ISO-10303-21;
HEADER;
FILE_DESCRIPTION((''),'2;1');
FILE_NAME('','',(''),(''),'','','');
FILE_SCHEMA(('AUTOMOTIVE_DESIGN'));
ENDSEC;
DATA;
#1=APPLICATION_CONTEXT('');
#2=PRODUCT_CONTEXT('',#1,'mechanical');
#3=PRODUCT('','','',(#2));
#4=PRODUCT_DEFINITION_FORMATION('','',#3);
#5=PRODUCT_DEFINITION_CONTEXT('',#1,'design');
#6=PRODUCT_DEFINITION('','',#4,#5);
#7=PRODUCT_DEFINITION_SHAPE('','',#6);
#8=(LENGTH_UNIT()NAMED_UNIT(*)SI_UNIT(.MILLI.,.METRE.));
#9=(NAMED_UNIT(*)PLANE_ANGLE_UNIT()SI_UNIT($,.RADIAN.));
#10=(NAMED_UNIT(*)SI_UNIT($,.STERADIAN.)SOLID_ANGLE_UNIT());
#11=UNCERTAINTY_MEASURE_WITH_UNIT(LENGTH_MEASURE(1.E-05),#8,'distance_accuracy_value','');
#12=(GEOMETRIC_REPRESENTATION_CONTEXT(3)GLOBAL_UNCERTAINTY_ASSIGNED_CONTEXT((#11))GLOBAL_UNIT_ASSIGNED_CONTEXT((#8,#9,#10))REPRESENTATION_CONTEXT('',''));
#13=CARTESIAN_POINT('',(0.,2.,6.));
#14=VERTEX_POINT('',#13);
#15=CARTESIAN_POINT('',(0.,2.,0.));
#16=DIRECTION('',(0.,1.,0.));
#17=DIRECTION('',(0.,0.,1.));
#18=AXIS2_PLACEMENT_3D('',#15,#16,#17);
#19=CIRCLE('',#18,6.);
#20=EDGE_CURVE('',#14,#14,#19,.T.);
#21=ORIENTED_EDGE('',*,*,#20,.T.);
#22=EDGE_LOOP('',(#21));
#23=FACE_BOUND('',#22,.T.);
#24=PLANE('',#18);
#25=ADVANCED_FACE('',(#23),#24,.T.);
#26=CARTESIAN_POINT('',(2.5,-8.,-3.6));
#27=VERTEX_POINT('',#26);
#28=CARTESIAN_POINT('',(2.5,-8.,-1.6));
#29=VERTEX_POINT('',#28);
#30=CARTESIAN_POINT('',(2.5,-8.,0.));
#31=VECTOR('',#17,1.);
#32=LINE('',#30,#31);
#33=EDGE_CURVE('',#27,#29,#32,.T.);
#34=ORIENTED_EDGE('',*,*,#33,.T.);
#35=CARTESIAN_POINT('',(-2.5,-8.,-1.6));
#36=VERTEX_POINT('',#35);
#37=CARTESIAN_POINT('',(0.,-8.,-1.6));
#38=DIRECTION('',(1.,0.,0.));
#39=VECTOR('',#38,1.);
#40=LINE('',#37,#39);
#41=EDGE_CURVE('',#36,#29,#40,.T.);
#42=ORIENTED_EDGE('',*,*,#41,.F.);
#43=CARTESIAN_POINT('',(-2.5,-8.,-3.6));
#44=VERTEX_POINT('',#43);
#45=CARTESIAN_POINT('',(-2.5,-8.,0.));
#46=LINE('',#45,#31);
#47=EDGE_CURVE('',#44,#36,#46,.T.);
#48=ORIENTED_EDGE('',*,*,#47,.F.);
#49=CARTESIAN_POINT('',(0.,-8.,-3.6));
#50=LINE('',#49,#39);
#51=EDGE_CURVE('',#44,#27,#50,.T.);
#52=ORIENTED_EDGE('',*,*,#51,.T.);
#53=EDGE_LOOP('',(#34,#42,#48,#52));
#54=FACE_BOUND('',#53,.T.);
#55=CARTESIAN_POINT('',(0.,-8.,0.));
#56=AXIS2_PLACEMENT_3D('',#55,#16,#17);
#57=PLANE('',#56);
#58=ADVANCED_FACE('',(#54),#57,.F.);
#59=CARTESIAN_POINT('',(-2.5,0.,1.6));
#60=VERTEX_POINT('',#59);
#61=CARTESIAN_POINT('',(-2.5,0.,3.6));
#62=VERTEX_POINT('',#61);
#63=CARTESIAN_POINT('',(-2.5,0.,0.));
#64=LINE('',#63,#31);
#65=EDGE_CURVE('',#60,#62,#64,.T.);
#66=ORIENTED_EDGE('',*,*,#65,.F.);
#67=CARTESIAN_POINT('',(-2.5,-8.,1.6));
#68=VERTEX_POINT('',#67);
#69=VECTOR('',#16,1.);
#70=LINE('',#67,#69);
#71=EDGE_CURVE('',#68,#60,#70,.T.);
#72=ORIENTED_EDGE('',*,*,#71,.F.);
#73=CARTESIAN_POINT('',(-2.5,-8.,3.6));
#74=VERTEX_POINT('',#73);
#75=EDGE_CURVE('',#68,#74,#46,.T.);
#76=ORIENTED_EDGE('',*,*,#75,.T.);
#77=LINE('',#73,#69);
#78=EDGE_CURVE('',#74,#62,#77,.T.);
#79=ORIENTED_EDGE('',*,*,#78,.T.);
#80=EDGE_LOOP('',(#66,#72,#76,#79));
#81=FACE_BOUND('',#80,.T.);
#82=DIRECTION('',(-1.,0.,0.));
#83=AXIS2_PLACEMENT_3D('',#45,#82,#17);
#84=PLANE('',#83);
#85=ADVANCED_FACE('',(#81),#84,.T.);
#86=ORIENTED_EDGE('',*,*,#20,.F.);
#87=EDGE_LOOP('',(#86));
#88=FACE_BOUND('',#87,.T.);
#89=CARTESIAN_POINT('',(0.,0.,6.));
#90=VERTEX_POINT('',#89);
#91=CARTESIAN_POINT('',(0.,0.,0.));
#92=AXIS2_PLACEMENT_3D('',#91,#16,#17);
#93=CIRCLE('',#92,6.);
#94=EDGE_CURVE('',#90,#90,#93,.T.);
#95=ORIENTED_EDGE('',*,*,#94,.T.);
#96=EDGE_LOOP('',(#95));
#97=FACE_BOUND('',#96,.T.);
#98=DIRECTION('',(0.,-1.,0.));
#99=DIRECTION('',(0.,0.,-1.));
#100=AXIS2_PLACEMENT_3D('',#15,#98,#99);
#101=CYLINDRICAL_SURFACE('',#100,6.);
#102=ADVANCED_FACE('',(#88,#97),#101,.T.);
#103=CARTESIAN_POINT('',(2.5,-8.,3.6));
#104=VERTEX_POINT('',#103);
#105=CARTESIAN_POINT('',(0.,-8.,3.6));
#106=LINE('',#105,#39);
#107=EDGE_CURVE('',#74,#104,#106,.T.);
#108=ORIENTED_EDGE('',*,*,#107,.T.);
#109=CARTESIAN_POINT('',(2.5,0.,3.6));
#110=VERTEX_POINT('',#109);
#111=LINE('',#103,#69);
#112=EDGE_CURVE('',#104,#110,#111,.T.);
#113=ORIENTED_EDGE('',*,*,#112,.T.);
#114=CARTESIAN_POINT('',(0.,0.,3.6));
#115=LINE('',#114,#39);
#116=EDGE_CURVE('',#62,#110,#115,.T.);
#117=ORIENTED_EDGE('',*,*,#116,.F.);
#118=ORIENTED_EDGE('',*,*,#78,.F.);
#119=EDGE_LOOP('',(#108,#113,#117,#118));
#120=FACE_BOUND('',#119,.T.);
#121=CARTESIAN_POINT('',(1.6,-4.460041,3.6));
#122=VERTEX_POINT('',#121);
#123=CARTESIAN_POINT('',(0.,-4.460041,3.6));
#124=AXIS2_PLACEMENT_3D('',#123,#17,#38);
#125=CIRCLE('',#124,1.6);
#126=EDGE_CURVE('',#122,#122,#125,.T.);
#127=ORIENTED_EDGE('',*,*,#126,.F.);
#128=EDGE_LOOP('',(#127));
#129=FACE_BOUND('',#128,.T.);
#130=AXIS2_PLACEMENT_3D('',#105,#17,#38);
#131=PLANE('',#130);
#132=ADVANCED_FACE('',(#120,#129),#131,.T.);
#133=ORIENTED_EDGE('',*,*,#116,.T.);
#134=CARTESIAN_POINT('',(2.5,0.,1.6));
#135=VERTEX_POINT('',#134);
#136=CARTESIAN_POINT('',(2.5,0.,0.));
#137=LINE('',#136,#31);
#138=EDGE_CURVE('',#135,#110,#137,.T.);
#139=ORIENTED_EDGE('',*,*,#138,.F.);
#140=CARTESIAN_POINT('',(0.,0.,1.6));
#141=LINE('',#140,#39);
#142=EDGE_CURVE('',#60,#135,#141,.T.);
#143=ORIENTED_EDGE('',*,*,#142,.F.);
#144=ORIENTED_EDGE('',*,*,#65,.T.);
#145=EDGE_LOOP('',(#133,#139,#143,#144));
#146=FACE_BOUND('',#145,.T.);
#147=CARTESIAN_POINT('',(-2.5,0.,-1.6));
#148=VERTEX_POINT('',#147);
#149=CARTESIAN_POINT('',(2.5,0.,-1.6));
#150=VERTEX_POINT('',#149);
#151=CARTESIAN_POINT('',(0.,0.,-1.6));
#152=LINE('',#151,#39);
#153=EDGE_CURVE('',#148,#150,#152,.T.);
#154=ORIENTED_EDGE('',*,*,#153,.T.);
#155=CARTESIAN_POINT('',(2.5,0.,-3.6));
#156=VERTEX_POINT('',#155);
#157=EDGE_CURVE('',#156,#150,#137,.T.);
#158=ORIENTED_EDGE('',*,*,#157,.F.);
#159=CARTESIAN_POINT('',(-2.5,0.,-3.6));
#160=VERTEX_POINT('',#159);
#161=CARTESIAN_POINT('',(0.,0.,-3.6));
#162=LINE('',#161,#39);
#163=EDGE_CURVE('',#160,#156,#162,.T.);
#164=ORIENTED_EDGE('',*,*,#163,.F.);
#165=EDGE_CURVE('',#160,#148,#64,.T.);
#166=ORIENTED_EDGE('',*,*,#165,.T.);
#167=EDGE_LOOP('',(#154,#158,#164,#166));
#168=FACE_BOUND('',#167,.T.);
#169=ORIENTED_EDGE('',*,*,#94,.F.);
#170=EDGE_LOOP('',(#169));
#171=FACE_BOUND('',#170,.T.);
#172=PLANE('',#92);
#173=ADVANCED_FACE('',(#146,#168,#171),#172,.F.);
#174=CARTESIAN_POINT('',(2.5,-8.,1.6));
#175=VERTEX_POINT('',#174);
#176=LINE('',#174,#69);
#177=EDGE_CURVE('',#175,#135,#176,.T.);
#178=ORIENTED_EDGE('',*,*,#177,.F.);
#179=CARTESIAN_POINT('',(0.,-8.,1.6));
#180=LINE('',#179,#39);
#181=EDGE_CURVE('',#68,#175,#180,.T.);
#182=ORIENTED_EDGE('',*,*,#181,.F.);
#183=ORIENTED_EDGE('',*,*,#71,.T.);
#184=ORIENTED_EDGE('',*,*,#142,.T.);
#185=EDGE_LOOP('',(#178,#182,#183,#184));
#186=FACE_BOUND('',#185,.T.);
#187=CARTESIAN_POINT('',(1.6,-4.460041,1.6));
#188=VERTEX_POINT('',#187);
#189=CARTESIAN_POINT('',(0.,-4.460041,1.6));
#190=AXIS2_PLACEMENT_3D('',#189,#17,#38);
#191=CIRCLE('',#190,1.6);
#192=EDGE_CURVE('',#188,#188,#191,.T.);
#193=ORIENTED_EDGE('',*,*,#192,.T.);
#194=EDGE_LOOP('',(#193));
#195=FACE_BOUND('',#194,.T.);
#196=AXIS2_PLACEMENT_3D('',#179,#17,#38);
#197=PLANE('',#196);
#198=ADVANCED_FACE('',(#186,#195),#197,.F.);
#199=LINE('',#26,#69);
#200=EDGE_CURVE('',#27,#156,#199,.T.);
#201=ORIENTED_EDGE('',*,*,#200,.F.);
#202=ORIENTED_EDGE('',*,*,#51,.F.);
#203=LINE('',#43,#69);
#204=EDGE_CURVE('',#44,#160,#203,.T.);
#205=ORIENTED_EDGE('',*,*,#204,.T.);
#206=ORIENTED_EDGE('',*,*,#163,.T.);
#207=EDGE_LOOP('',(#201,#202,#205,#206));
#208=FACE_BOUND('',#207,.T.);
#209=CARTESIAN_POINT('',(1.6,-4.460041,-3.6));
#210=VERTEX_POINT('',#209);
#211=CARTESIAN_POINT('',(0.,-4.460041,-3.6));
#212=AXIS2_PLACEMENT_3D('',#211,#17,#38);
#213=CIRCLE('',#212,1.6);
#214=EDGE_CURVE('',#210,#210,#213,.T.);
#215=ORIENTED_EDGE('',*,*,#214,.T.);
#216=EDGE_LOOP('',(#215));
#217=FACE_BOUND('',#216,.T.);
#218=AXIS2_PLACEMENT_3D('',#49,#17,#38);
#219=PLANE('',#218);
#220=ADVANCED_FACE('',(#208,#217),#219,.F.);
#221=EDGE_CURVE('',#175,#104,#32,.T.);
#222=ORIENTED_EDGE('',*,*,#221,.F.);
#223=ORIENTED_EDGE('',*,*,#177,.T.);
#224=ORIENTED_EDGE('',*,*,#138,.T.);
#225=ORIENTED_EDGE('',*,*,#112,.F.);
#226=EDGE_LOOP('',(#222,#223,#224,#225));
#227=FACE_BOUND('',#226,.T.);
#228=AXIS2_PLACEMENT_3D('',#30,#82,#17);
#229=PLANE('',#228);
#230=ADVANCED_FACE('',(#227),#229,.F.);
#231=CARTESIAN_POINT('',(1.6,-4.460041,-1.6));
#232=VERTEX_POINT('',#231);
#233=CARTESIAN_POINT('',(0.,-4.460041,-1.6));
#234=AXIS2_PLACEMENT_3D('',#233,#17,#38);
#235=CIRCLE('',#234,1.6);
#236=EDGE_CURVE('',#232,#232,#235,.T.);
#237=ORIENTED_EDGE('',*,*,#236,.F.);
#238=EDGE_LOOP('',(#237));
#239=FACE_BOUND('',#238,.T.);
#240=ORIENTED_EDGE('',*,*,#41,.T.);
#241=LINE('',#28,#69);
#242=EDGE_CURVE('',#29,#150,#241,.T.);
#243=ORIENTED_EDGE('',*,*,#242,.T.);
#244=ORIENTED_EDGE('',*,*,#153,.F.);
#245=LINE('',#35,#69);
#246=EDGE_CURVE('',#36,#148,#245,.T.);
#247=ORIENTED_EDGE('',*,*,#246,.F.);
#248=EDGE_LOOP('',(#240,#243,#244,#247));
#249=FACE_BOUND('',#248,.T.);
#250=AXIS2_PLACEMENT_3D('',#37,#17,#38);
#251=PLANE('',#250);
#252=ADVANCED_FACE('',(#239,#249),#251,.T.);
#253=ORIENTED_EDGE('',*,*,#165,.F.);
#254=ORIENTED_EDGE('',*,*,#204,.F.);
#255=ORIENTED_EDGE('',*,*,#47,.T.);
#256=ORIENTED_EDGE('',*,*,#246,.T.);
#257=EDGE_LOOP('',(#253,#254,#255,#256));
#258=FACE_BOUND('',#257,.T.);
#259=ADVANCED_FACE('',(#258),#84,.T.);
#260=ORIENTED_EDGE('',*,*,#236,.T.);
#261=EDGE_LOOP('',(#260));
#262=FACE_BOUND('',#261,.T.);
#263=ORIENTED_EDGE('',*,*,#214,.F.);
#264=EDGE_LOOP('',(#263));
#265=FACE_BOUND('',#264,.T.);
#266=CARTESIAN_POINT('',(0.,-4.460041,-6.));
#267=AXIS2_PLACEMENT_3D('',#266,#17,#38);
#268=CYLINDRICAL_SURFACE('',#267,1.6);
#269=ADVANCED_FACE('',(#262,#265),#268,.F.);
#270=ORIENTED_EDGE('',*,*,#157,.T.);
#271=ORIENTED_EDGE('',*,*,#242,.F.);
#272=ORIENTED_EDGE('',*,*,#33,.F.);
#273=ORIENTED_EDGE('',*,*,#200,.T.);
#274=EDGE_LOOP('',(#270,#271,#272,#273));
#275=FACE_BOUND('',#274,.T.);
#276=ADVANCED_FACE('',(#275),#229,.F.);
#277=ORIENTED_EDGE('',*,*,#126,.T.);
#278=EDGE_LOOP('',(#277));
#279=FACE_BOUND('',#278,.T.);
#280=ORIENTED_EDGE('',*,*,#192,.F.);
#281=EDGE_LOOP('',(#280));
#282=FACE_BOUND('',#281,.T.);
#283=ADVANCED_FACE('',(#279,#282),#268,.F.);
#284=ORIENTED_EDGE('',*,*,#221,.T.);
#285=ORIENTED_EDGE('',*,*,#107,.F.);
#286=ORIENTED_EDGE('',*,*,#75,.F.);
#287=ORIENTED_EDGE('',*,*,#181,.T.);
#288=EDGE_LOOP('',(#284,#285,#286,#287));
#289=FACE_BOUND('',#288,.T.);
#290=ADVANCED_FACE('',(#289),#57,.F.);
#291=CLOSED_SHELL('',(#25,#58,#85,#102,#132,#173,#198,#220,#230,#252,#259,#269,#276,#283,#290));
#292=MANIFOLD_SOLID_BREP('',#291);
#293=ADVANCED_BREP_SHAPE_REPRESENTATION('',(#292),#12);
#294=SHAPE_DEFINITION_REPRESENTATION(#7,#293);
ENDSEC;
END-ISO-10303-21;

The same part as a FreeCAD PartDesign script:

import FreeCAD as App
import Part
import Sketcher
from FreeCAD import Vector

doc = App.newDocument("Part")
params = doc.addObject("Spreadsheet::Sheet", "Params")
for row, (alias, value) in enumerate([
    ("sketch1_diameter", "12 mm"),
    ("pad1_length", "2 mm"),
    ("sketch2_width", "5 mm"),
    ("sketch2_height", "2 mm"),
    ("pad2_length", "8 mm"),
    ("sketch3_diameter", "3.2 mm"),
], start=1):
    params.set(f"A{row}", alias)
    params.set(f"B{row}", "=" + value)
    params.setAlias(f"B{row}", alias)

body = doc.addObject("PartDesign::Body", "Body")

# Sketch on XZ plane
sketch1 = body.newObject("Sketcher::SketchObject", "Sketch")
sketch1.AttachmentSupport = (doc.getObject("XZ_Plane"), [""])
sketch1.MapMode = "FlatFace"
sketch1.addGeometry(Part.Circle(Vector(0, 0, 0), Vector(0, 0, 1), 6), False)
sketch1.addConstraint(Sketcher.Constraint("Coincident", 0, 3, -1, 1))
sketch1.addConstraint(Sketcher.Constraint("Diameter", 0, 12.0))
sketch1.setExpression("Constraints[1]", "Params.sketch1_diameter")
pad1 = body.newObject("PartDesign::Pad", "Pad")
pad1.Profile = sketch1
pad1.setExpression("Length", "Params.pad1_length")
pad1.Reversed = True

# Sketch on XZ plane
sketch2 = body.newObject("Sketcher::SketchObject", "Sketch001")
sketch2.AttachmentSupport = (doc.getObject("XZ_Plane"), [""])
sketch2.MapMode = "FlatFace"
sketch2.addGeometry(Part.LineSegment(Vector(-2.5, -3.6, 0), Vector(-2.5, -1.6, 0)), False)
sketch2.addGeometry(Part.LineSegment(Vector(-2.5, -1.6, 0), Vector(2.5, -1.6, 0)), False)
sketch2.addGeometry(Part.LineSegment(Vector(2.5, -1.6, 0), Vector(2.5, -3.6, 0)), False)
sketch2.addGeometry(Part.LineSegment(Vector(2.5, -3.6, 0), Vector(-2.5, -3.6, 0)), False)
sketch2.addGeometry(Part.LineSegment(Vector(-2.5, 1.6, 0), Vector(-2.5, 3.6, 0)), False)
sketch2.addGeometry(Part.LineSegment(Vector(-2.5, 3.6, 0), Vector(2.5, 3.6, 0)), False)
sketch2.addGeometry(Part.LineSegment(Vector(2.5, 3.6, 0), Vector(2.5, 1.6, 0)), False)
sketch2.addGeometry(Part.LineSegment(Vector(2.5, 1.6, 0), Vector(-2.5, 1.6, 0)), False)
sketch2.addConstraint(Sketcher.Constraint("Coincident", 0, 2, 1, 1))
sketch2.addConstraint(Sketcher.Constraint("Coincident", 1, 2, 2, 1))
sketch2.addConstraint(Sketcher.Constraint("Coincident", 2, 2, 3, 1))
sketch2.addConstraint(Sketcher.Constraint("Coincident", 3, 2, 0, 1))
sketch2.addConstraint(Sketcher.Constraint("Coincident", 4, 2, 5, 1))
sketch2.addConstraint(Sketcher.Constraint("Coincident", 5, 2, 6, 1))
sketch2.addConstraint(Sketcher.Constraint("Coincident", 6, 2, 7, 1))
sketch2.addConstraint(Sketcher.Constraint("Coincident", 7, 2, 4, 1))
sketch2.addConstraint(Sketcher.Constraint("Vertical", 0))
sketch2.addConstraint(Sketcher.Constraint("Horizontal", 1))
sketch2.addConstraint(Sketcher.Constraint("Vertical", 2))
sketch2.addConstraint(Sketcher.Constraint("Horizontal", 3))
sketch2.addConstraint(Sketcher.Constraint("Vertical", 4))
sketch2.addConstraint(Sketcher.Constraint("Horizontal", 5))
sketch2.addConstraint(Sketcher.Constraint("Vertical", 6))
sketch2.addConstraint(Sketcher.Constraint("Horizontal", 7))
sketch2.addConstraint(Sketcher.Constraint("Symmetric", 2, 2, 4, 2, -1, 1))
sketch2.addConstraint(Sketcher.Constraint("Symmetric", 0, 2, 6, 2, -1, 1))
sketch2.addConstraint(Sketcher.Constraint("Vertical", 3, 2, 4, 2))
sketch2.addConstraint(Sketcher.Constraint("DistanceX", 1, 1, 1, 2, 5.0))
sketch2.addConstraint(Sketcher.Constraint("DistanceY", 0, 1, 0, 2, 2.0))
sketch2.addConstraint(Sketcher.Constraint("DistanceY", 0, 2, -1, 1, 1.6))
sketch2.setExpression("Constraints[19]", "Params.sketch2_width")
sketch2.setExpression("Constraints[20]", "Params.sketch2_height")
pad2 = body.newObject("PartDesign::Pad", "Pad001")
pad2.Profile = sketch2
pad2.setExpression("Length", "Params.pad2_length")

# Sketch on XY plane
sketch3 = body.newObject("Sketcher::SketchObject", "Sketch002")
sketch3.AttachmentSupport = (doc.getObject("XY_Plane"), [""])
sketch3.MapMode = "FlatFace"
sketch3.AttachmentOffset = App.Placement(Vector(0, 0, 3.6), App.Rotation())
sketch3.addGeometry(Part.Circle(Vector(0, -4.5, 0), Vector(0, 0, 1), 1.6), False)
sketch3.addConstraint(Sketcher.Constraint("PointOnObject", 0, 3, -2))
sketch3.addConstraint(Sketcher.Constraint("Diameter", 0, 3.2))
sketch3.addConstraint(Sketcher.Constraint("DistanceY", 0, 3, -1, 1, 4.460041))
sketch3.setExpression("Constraints[1]", "Params.sketch3_diameter")
pocket1 = body.newObject("PartDesign::Pocket", "Pocket")
pocket1.Profile = sketch3
pocket1.Type = "ThroughAll"

doc.recompute()
